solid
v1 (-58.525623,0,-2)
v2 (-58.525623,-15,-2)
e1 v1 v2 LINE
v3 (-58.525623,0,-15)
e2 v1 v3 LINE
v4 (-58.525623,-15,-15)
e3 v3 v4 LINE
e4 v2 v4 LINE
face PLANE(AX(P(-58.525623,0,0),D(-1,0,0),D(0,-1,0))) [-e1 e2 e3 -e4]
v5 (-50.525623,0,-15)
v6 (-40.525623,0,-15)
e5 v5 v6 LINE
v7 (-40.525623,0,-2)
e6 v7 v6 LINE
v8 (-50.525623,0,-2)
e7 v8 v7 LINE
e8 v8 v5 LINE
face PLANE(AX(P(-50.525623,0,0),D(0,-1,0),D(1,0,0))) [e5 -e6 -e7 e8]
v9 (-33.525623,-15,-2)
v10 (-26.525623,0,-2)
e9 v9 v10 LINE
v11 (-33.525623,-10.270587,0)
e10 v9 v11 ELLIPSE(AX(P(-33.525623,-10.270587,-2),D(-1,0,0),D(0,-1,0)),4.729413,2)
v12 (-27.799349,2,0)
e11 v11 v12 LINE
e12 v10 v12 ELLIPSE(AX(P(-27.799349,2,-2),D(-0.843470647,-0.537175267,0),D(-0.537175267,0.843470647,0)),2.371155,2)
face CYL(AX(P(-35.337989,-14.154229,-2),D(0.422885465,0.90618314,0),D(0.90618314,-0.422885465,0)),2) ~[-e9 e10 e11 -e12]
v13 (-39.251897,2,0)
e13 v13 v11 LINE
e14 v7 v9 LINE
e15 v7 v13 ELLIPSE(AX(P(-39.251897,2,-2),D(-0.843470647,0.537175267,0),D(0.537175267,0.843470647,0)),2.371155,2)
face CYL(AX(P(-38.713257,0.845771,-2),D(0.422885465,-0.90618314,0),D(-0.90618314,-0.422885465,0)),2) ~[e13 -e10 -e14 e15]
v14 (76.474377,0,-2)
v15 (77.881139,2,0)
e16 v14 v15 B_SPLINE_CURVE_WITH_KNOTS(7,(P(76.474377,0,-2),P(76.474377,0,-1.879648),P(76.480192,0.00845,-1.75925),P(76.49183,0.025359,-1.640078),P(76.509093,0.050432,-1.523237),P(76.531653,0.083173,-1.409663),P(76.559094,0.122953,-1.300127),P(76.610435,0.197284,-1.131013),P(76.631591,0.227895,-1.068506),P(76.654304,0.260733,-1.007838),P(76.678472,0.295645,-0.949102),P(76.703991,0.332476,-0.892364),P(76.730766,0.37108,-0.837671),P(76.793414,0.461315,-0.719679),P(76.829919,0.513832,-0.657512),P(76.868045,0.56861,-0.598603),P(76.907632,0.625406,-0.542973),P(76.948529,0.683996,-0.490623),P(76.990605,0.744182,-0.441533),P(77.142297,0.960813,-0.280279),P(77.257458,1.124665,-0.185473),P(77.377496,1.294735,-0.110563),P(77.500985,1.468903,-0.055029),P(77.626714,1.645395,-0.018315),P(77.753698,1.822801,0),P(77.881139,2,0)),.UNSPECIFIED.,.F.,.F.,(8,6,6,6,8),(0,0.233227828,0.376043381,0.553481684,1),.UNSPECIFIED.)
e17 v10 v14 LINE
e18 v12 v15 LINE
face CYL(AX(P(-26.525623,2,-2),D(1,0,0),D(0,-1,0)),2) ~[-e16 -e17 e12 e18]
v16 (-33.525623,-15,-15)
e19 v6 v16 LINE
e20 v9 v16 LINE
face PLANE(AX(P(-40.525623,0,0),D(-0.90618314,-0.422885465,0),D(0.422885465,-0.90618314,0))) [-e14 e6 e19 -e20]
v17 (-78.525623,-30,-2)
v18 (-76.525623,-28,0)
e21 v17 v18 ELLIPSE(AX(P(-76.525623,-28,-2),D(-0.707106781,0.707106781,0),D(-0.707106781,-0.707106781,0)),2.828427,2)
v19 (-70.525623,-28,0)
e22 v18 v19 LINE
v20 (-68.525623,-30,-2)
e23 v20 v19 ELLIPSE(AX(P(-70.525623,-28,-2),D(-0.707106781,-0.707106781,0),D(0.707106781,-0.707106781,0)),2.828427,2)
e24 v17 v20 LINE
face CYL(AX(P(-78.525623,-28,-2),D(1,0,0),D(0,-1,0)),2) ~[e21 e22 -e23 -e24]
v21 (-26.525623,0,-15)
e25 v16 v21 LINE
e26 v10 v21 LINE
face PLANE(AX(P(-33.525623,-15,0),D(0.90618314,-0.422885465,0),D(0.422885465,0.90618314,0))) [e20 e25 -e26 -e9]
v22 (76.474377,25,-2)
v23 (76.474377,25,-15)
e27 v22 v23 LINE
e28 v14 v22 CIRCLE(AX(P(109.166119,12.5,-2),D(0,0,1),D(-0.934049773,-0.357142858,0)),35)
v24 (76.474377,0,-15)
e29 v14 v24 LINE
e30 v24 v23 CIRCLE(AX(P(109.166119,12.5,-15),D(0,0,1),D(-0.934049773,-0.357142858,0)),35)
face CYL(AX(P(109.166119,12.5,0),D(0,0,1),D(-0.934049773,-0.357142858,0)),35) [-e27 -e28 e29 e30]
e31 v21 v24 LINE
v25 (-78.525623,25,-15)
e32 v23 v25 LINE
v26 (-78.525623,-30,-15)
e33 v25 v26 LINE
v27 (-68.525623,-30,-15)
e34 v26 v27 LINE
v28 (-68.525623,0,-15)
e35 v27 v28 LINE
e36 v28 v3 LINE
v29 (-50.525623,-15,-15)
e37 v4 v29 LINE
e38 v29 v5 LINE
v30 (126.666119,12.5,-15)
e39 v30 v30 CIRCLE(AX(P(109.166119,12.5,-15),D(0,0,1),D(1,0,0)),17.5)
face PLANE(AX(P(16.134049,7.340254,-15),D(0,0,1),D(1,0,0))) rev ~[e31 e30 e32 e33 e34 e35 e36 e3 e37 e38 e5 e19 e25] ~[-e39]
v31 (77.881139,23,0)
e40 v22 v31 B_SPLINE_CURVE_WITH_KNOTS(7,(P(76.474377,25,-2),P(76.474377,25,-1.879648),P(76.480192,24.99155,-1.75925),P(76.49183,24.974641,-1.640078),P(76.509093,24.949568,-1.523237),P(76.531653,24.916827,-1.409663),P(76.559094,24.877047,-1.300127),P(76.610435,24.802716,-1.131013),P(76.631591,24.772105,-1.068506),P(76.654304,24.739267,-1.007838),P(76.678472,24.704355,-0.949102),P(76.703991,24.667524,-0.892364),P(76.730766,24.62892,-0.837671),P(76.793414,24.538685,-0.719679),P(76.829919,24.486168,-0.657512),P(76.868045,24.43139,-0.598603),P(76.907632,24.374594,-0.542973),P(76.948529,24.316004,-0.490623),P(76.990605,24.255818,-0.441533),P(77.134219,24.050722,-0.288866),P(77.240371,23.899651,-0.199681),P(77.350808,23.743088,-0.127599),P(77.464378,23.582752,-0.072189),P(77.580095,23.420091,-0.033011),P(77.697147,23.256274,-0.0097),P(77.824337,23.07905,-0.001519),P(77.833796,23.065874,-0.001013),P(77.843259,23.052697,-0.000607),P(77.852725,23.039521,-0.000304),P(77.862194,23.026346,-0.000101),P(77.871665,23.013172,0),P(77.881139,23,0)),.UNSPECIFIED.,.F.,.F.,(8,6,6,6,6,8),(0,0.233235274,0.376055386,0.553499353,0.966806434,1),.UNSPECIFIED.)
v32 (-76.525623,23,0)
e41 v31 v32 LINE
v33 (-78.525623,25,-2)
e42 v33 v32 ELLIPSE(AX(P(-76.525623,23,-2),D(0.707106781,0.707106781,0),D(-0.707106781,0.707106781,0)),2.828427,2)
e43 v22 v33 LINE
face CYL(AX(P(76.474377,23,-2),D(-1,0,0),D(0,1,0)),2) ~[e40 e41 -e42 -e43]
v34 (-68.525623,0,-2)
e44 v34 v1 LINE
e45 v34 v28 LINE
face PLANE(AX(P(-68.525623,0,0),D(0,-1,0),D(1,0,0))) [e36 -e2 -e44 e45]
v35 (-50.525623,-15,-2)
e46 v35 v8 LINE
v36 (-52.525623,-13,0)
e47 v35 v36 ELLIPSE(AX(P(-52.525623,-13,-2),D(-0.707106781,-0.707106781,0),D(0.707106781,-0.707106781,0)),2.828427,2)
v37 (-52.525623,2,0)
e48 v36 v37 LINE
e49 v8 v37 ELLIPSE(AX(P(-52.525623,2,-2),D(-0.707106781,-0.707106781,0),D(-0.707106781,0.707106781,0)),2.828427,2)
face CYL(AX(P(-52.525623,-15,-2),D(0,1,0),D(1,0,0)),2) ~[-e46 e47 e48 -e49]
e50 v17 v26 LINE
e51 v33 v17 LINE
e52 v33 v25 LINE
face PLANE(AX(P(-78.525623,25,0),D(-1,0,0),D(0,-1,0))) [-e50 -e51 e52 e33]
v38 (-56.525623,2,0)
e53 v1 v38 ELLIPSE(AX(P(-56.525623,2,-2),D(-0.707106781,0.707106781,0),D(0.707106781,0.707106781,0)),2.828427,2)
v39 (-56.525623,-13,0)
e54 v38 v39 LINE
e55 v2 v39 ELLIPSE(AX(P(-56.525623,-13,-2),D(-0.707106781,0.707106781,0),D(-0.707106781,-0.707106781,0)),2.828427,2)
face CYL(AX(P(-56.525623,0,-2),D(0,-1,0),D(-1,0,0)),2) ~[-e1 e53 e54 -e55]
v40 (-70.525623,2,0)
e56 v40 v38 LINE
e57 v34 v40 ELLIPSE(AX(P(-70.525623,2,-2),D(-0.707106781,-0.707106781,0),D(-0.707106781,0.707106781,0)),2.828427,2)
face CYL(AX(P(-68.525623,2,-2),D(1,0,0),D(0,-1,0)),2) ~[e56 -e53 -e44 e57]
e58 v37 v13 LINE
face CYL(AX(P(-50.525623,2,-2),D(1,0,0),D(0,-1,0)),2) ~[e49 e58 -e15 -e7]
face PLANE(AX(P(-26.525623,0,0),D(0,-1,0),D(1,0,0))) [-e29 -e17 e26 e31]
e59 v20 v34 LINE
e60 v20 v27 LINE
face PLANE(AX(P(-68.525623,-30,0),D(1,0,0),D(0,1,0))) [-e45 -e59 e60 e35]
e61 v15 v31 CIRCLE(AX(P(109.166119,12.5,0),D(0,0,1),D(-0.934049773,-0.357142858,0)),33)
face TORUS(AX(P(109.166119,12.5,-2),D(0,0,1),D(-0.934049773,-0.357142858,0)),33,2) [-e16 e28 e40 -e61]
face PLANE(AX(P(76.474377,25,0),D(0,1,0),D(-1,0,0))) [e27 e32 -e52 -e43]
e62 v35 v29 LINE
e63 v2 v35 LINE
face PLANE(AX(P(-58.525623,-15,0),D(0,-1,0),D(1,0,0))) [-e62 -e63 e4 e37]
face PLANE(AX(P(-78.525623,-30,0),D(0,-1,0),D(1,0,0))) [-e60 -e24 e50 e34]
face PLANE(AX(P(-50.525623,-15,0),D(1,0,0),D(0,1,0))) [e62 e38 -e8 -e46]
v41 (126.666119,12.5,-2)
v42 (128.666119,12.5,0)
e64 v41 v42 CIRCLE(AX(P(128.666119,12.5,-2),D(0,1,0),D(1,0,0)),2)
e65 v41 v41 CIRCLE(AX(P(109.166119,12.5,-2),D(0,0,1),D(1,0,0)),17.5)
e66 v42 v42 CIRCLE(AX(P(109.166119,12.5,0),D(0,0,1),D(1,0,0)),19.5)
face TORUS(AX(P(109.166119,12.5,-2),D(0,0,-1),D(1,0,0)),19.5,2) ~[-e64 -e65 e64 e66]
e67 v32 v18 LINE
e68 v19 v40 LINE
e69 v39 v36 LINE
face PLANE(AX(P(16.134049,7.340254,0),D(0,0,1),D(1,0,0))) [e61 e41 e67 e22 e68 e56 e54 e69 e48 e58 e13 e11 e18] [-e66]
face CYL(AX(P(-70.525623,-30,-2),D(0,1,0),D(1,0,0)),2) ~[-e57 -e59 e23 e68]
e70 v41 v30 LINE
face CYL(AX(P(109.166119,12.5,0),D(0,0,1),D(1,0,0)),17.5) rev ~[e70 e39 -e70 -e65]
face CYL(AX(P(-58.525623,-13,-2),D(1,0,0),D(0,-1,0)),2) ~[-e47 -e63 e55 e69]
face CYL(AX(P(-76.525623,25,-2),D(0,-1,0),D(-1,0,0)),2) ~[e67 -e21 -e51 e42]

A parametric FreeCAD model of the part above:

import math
import FreeCAD as App
import Part
import Sketcher
from FreeCAD import Vector
Q = App.Units.Quantity


def edges_at(feature, points):
    """Names of the edges that pass closest to the given points."""
    edges = feature.Shape.Edges
    near = lambda p: min(range(len(edges)), key=lambda i: edges[i].distToShape(Part.Vertex(*p))[0])
    return sorted({f"Edge{near(p) + 1}" for p in points})

doc = App.newDocument("Part")
body = doc.addObject("PartDesign::Body", "Body")

# Sketch on XY plane
sketch1 = body.newObject("Sketcher::SketchObject", "Sketch")
sketch1.AttachmentSupport = (doc.getObject("XY_Plane"), [""])
sketch1.MapMode = "FlatFace"
sketch1.addGeometry(Part.LineSegment(Vector(76.474377, 25, 0), Vector(-78.525623, 25, 0)), False)
sketch1.addGeometry(Part.LineSegment(Vector(-78.525623, 25, 0), Vector(-78.525623, -30, 0)), False)
sketch1.addGeometry(Part.LineSegment(Vector(-78.525623, -30, 0), Vector(-68.525623, -30, 0)), False)
sketch1.addGeometry(Part.LineSegment(Vector(-68.525623, -30, 0), Vector(-68.525623, 0, 0)), False)
sketch1.addGeometry(Part.LineSegment(Vector(-68.525623, 0, 0), Vector(-58.525623, 0, 0)), False)
sketch1.addGeometry(Part.LineSegment(Vector(-58.525623, 0, 0), Vector(-58.525623, -15, 0)), False)
sketch1.addGeometry(Part.LineSegment(Vector(-58.525623, -15, 0), Vector(-50.525623, -15, 0)), False)
sketch1.addGeometry(Part.LineSegment(Vector(-50.525623, -15, 0), Vector(-50.525623, 0, 0)), False)
sketch1.addGeometry(Part.LineSegment(Vector(-50.525623, 0, 0), Vector(-40.525623, 0, 0)), False)
sketch1.addGeometry(Part.LineSegment(Vector(-40.525623, 0, 0), Vector(-33.525623, -15, 0)), False)
sketch1.addGeometry(Part.LineSegment(Vector(-33.525623, -15, 0), Vector(-26.525623, 0, 0)), False)
sketch1.addGeometry(Part.LineSegment(Vector(-26.525623, 0, 0), Vector(76.474377, 0, 0)), False)
sketch1.addGeometry(Part.ArcOfCircle(Part.Circle(Vector(109.166119, 12.5, 0), Vector(0, 0, 1), 35), math.radians(-159.075168), math.radians(159.075168)), False)
sketch1.addGeometry(Part.Circle(Vector(109.166119, 12.5, 0), Vector(0, 0, 1), 17.5), False)
sketch1.addConstraint(Sketcher.Constraint("Coincident", 0, 2, 1, 1))
sketch1.addConstraint(Sketcher.Constraint("Coincident", 1, 2, 2, 1))
sketch1.addConstraint(Sketcher.Constraint("Coincident", 2, 2, 3, 1))
sketch1.addConstraint(Sketcher.Constraint("Coincident", 3, 2, 4, 1))
sketch1.addConstraint(Sketcher.Constraint("Coincident", 4, 2, 5, 1))
sketch1.addConstraint(Sketcher.Constraint("Coincident", 5, 2, 6, 1))
sketch1.addConstraint(Sketcher.Constraint("Coincident", 6, 2, 7, 1))
sketch1.addConstraint(Sketcher.Constraint("Coincident", 7, 2, 8, 1))
sketch1.addConstraint(Sketcher.Constraint("Coincident", 8, 2, 9, 1))
sketch1.addConstraint(Sketcher.Constraint("Coincident", 9, 2, 10, 1))
sketch1.addConstraint(Sketcher.Constraint("Coincident", 10, 2, 11, 1))
sketch1.addConstraint(Sketcher.Constraint("Coincident", 11, 2, 12, 1))
sketch1.addConstraint(Sketcher.Constraint("Coincident", 12, 2, 0, 1))
sketch1.addConstraint(Sketcher.Constraint("Horizontal", 0))
sketch1.addConstraint(Sketcher.Constraint("Vertical", 1))
sketch1.addConstraint(Sketcher.Constraint("Horizontal", 2))
sketch1.addConstraint(Sketcher.Constraint("Vertical", 3))
sketch1.addConstraint(Sketcher.Constraint("Horizontal", 4))
sketch1.addConstraint(Sketcher.Constraint("Vertical", 5))
sketch1.addConstraint(Sketcher.Constraint("Horizontal", 6))
sketch1.addConstraint(Sketcher.Constraint("Vertical", 7))
sketch1.addConstraint(Sketcher.Constraint("Horizontal", 8))
sketch1.addConstraint(Sketcher.Constraint("Horizontal", 11))
sketch1.addConstraint(Sketcher.Constraint("Coincident", 13, 3, 12, 3))
sketch1.addConstraint(Sketcher.Constraint("PointOnObject", 3, 2, -1))
sketch1.addConstraint(Sketcher.Constraint("PointOnObject", 7, 2, -1))
sketch1.addConstraint(Sketcher.Constraint("PointOnObject", 10, 2, -1))
sketch1.addConstraint(Sketcher.Constraint("Horizontal", 6, 2, 9, 2))
sketch1.addConstraint(Sketcher.Constraint("Vertical", 11, 2, 12, 2))
sketch1.addConstraint(Sketcher.Constraint("Equal", 2, 4))
sketch1.addConstraint(Sketcher.Constraint("Equal", 4, 8))
sketch1.addConstraint(Sketcher.Constraint("Equal", 9, 10))
sketch1.addConstraint(Sketcher.Constraint("Diameter", 13, Q("35 mm")))
sketch1.addConstraint(Sketcher.Constraint("Radius", 12, Q("35 mm")))
sketch1.addConstraint(Sketcher.Constraint("DistanceX", 0, 2, 0, 1, Q("155 mm")))
sketch1.addConstraint(Sketcher.Constraint("DistanceX", 2, 1, 2, 2, Q("10 mm")))
sketch1.addConstraint(Sketcher.Constraint("DistanceX", 6, 1, 6, 2, Q("8 mm")))
sketch1.addConstraint(Sketcher.Constraint("DistanceX", 11, 1, 11, 2, Q("103 mm")))
sketch1.addConstraint(Sketcher.Constraint("DistanceY", 1, 2, 1, 1, Q("55 mm")))
sketch1.addConstraint(Sketcher.Constraint("DistanceY", 3, 1, 3, 2, Q("30 mm")))
sketch1.addConstraint(Sketcher.Constraint("DistanceY", 5, 2, 5, 1, Q("15 mm")))
sketch1.addConstraint(Sketcher.Constraint("DistanceX", -1, 1, 12, 3, Q("109.166119 mm")))
pad1 = body.newObject("PartDesign::Pad", "Pad")
pad1.Profile = sketch1
pad1.Length = 15
pad1.Reversed = True
doc.recompute()

fillet = body.newObject("PartDesign::Fillet", "Fillet")
fillet.Base = (pad1, edges_at(pad1, [
    (-1.026, 25, 0),
    (-78.526, -2.5, 0),
    (-73.526, -30, 0),
    (-68.526, -15, 0),
    (-63.526, 0, 0),
    (-58.526, -7.5, 0),
    (-54.526, -15, 0),
    (-50.526, -7.5, 0),
    (-45.526, 0, 0),
    (-37.026, -7.5, 0),
    (-30.026, -7.5, 0),
    (24.974, 0, 0),
    (144.166, 12.5, 0),
    (91.666, 12.5, 0),
]))
fillet.Radius = 2

doc.recompute()
